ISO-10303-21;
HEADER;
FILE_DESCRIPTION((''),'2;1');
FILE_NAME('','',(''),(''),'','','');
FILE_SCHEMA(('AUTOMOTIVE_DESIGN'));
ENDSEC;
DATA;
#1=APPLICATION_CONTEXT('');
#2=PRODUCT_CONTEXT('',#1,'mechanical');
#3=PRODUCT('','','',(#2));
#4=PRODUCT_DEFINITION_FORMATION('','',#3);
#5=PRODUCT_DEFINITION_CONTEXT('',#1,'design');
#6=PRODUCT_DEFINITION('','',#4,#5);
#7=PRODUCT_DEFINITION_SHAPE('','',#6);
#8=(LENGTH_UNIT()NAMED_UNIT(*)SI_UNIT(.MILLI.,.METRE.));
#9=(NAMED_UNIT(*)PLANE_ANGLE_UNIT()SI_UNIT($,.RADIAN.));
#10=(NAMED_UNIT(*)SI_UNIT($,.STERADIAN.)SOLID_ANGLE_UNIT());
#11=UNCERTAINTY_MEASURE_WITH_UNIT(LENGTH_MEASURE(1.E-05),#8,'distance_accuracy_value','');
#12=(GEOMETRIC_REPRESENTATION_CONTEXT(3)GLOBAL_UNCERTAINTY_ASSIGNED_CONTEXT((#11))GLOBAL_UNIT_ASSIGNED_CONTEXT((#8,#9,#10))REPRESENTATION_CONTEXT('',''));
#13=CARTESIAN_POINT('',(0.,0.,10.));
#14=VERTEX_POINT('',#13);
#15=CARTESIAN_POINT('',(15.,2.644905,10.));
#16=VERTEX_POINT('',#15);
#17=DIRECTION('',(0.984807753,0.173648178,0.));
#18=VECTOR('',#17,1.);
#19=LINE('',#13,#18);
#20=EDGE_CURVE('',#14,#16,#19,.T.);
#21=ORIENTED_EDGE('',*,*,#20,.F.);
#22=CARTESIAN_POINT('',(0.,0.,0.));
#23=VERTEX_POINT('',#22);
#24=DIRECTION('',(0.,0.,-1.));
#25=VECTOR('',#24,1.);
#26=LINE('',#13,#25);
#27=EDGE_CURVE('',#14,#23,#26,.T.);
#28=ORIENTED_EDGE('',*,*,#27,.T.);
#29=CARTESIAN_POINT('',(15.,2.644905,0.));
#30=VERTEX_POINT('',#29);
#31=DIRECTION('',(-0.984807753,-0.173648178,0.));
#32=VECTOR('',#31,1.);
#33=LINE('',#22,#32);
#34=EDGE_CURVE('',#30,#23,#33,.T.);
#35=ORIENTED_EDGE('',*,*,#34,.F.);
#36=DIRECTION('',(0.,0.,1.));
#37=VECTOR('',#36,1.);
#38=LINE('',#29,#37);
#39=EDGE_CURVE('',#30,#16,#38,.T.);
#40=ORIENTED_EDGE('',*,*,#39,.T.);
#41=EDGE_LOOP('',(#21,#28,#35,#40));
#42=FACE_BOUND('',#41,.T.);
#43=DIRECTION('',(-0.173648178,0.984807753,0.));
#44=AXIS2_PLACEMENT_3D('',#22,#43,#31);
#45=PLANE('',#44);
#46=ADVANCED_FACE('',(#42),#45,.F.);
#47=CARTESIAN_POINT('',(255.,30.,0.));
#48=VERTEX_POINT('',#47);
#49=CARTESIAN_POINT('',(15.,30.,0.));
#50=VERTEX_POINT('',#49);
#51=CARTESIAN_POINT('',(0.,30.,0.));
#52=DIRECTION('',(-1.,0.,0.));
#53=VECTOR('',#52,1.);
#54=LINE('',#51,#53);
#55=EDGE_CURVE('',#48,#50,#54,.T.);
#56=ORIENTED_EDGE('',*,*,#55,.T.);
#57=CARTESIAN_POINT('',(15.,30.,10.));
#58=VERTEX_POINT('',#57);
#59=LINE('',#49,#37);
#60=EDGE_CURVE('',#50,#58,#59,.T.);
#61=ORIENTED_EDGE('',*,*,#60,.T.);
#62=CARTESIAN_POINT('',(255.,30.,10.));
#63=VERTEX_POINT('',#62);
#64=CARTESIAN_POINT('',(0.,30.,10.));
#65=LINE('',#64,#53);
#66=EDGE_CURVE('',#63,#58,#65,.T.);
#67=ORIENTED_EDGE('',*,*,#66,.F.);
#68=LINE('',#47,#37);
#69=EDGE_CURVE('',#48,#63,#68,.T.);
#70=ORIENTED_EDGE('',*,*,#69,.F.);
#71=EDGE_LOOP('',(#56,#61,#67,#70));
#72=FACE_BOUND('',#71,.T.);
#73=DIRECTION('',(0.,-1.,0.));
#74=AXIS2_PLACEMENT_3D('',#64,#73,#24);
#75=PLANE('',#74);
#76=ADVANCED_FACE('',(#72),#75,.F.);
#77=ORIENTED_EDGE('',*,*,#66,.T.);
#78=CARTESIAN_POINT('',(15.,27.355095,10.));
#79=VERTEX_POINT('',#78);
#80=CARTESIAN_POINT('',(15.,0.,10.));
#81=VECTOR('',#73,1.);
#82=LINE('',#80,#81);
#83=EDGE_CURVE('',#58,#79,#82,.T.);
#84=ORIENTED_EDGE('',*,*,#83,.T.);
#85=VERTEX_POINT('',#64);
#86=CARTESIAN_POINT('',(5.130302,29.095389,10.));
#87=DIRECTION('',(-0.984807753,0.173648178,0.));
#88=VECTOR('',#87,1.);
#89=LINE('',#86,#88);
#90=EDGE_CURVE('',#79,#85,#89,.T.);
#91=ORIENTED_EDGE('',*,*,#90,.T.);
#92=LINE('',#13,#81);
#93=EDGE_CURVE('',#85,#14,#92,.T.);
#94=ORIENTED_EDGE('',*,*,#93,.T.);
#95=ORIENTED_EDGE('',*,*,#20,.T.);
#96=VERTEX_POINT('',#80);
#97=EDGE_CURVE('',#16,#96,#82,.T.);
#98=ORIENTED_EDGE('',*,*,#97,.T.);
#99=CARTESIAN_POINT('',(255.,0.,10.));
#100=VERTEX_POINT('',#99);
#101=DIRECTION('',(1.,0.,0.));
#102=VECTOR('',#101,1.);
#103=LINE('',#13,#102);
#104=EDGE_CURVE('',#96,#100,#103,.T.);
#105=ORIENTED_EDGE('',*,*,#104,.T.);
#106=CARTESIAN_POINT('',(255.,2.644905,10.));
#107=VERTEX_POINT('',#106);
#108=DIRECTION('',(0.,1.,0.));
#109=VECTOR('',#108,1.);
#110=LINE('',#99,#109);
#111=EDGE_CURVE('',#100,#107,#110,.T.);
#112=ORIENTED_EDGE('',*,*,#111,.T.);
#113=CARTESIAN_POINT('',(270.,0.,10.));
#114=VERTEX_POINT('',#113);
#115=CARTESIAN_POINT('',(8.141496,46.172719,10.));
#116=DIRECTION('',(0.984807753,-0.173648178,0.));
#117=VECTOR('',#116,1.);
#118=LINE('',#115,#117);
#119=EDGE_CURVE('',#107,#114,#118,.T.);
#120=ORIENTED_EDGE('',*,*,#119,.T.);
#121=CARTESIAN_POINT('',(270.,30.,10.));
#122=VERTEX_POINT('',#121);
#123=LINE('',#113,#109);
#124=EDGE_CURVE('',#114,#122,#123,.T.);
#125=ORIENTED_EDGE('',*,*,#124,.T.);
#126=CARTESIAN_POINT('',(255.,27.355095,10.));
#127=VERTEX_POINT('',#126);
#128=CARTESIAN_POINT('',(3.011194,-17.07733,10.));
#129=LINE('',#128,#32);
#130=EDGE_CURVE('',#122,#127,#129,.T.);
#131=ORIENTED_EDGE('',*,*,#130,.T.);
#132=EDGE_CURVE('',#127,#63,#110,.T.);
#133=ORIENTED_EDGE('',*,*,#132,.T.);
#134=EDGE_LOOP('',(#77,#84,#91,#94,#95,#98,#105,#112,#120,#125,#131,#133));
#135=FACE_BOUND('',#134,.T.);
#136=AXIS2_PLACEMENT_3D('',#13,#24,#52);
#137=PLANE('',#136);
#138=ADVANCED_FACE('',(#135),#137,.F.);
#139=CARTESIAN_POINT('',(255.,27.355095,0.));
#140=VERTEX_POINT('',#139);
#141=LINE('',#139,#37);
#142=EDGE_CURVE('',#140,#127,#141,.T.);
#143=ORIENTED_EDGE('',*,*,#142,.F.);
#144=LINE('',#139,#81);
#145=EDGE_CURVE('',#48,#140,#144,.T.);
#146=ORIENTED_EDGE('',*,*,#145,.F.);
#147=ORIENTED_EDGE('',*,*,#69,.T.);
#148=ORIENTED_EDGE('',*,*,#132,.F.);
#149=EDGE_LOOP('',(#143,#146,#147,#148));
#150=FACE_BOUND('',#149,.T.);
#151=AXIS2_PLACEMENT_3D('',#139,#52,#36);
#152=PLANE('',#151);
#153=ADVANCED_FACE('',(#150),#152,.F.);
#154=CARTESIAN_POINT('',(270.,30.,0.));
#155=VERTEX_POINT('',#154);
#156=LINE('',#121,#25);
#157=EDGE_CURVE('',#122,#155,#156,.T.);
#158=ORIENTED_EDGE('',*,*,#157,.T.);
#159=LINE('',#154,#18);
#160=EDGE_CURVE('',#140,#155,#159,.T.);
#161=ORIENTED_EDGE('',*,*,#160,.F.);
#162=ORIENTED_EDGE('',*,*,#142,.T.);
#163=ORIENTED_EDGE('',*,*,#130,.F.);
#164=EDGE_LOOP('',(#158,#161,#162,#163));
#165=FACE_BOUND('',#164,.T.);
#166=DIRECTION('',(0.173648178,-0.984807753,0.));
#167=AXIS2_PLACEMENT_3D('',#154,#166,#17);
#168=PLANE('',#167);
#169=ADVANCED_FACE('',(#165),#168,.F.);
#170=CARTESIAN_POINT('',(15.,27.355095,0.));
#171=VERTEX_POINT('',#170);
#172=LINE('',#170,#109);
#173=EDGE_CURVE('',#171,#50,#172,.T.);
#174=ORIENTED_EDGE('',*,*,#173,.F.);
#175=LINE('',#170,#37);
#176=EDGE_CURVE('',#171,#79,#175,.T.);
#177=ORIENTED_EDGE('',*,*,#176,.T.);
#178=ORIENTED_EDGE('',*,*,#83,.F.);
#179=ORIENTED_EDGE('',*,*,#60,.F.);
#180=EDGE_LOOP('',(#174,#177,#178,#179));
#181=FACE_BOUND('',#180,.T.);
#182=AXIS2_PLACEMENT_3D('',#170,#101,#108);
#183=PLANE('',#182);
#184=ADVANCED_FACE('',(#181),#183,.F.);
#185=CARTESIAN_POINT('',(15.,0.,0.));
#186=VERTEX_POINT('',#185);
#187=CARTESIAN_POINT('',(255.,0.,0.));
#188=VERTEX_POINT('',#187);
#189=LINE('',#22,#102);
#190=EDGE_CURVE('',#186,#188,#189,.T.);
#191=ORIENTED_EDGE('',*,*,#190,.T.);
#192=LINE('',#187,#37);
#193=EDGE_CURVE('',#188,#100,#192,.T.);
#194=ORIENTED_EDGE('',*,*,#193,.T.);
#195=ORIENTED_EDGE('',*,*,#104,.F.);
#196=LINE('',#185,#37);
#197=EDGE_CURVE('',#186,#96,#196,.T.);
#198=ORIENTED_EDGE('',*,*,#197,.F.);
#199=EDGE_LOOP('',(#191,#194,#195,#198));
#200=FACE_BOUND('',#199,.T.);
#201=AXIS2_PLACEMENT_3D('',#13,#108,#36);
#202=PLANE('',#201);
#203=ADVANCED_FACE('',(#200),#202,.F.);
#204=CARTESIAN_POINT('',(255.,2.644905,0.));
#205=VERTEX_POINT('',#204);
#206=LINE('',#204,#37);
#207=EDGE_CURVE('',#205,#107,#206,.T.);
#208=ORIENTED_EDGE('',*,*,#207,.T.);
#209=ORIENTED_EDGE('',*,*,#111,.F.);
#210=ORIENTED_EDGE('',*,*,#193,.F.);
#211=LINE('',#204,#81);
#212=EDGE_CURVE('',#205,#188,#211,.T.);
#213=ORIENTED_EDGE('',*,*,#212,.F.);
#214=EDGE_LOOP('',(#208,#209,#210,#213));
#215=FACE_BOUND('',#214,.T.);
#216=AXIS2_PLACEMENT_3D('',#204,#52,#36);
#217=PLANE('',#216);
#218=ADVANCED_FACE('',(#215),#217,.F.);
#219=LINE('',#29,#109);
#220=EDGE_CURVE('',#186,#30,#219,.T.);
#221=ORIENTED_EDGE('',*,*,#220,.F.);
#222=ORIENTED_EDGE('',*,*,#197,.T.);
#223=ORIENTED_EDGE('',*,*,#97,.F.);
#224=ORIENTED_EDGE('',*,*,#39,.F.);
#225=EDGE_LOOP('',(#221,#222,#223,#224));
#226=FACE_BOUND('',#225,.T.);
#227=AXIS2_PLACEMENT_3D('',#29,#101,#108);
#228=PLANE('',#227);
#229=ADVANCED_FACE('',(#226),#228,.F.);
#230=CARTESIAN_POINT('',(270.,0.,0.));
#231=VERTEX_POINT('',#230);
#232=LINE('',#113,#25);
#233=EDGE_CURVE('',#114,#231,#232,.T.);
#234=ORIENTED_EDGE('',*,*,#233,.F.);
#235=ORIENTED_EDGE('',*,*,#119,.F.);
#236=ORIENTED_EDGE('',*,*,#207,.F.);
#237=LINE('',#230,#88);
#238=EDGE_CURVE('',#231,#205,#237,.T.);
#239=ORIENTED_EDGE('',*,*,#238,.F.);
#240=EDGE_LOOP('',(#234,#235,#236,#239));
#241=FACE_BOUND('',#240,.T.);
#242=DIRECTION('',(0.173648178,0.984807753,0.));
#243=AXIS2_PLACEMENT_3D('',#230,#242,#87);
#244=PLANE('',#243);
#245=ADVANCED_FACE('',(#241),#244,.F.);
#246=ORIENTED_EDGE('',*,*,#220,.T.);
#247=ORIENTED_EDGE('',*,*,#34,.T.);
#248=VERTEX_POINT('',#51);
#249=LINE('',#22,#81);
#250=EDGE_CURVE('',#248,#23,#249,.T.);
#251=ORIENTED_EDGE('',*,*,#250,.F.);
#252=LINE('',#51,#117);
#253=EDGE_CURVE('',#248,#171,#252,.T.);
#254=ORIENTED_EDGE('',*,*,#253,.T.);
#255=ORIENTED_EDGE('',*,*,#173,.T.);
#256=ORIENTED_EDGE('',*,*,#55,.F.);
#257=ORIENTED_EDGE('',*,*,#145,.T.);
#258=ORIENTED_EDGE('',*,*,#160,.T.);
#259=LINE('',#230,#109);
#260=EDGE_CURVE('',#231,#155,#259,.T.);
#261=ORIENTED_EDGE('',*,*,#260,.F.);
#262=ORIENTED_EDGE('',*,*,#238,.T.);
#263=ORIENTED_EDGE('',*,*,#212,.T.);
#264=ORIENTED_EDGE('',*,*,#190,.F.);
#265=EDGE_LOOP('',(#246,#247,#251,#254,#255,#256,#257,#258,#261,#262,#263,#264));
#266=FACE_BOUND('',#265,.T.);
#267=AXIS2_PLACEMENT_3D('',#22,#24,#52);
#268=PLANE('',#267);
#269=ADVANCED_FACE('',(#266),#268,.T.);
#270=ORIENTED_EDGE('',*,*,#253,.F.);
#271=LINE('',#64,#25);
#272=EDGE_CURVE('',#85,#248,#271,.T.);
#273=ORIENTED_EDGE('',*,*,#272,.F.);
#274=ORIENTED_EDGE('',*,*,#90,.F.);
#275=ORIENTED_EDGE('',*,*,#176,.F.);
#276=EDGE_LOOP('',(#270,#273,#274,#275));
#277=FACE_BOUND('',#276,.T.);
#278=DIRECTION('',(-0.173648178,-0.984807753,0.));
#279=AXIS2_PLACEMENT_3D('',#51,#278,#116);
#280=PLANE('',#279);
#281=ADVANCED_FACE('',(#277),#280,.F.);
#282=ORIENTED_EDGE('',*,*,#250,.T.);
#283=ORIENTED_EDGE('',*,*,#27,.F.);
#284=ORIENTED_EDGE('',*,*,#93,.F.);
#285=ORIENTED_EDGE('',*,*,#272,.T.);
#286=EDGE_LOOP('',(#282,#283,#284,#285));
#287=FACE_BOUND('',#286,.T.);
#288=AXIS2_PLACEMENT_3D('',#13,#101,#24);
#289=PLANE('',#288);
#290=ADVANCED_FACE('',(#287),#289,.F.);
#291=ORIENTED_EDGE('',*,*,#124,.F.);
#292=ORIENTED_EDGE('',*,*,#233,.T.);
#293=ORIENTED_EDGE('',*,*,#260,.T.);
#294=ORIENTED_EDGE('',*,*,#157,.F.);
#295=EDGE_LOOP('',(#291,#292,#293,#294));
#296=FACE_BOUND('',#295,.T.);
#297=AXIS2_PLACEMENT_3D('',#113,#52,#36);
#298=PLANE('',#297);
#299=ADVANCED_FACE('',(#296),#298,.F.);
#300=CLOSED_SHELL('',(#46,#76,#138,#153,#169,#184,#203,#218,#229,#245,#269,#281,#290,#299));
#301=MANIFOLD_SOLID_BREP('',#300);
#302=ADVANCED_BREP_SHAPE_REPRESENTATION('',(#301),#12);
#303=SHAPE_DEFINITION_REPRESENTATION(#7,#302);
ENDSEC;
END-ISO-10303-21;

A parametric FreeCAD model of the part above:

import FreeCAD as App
import Part
import Sketcher
Q = App.Units.Quantity

doc = App.newDocument("Part")
params = doc.addObject("Spreadsheet::Sheet", "Params")
for row, (alias, value) in enumerate([
    ("sketch1_width", "270 mm"),
    ("sketch1_height", "30 mm"),
    ("pad1_length", "10 mm"),
    ("sketch2_width", "15 mm"),
], start=1):
    params.set(f"A{row}", alias)
    params.set(f"B{row}", "=" + value)
    params.setAlias(f"B{row}", alias)

body = doc.addObject("PartDesign::Body", "Body")

# Sketch on XY plane
sketch1 = doc.addObject("Sketcher::SketchObject", "Sketch")
body.addObject(sketch1)
sketch1.AttachmentSupport = (doc.XY_Plane, [""])
sketch1.MapMode = "FlatFace"
sketch1.addGeometry([
    Part.LineSegment(App.Vector(0, 30, 0), App.Vector(0, 0, 0)),
    Part.LineSegment(App.Vector(0, 0, 0), App.Vector(270, 0, 0)),
    Part.LineSegment(App.Vector(270, 0, 0), App.Vector(270, 30, 0)),
    Part.LineSegment(App.Vector(270, 30, 0), App.Vector(0, 30, 0)),
], False)
sketch1.addConstraint([
    Sketcher.Constraint("Coincident", 0, 2, 1, 1),
    Sketcher.Constraint("Coincident", 1, 2, 2, 1),
    Sketcher.Constraint("Coincident", 2, 2, 3, 1),
    Sketcher.Constraint("Coincident", 3, 2, 0, 1),
    Sketcher.Constraint("Vertical", 0),
    Sketcher.Constraint("Horizontal", 1),
    Sketcher.Constraint("Vertical", 2),
    Sketcher.Constraint("Horizontal", 3),
    Sketcher.Constraint("Coincident", 0, 2, -1, 1),
    Sketcher.Constraint("DistanceX", 1, 1, 1, 2, Q("270 mm")),
    Sketcher.Constraint("DistanceY", 0, 2, 0, 1, Q("30 mm")),
])
sketch1.setExpression("Constraints[9]", "Params.sketch1_width")
sketch1.setExpression("Constraints[10]", "Params.sketch1_height")
pad1 = doc.addObject("PartDesign::Pad", "Pad")
body.addObject(pad1)
pad1.Profile = sketch1
pad1.setExpression("Length", "Params.pad1_length")

# Sketch on XY plane
sketch2 = doc.addObject("Sketcher::SketchObject", "Sketch001")
body.addObject(sketch2)
sketch2.AttachmentSupport = (doc.XY_Plane, [""])
sketch2.MapMode = "FlatFace"
sketch2.AttachmentOffset = App.Placement(App.Vector(0, 0, 10), App.Rotation())
sketch2.addGeometry([
    Part.LineSegment(App.Vector(0, 30, 0), App.Vector(15, 27.355095, 0)),  # 0
    Part.LineSegment(App.Vector(15, 27.355095, 0), App.Vector(15, 30, 0)),  # 1
    Part.LineSegment(App.Vector(15, 30, 0), App.Vector(0, 30, 0)),  # 2
    Part.LineSegment(App.Vector(15, 0, 0), App.Vector(15, 2.644905, 0)),  # 3
    Part.LineSegment(App.Vector(15, 2.644905, 0), App.Vector(0, 0, 0)),  # 4
    Part.LineSegment(App.Vector(0, 0, 0), App.Vector(15, 0, 0)),  # 5
    Part.LineSegment(App.Vector(255, 0, 0), App.Vector(270, 0, 0)),  # 6
    Part.LineSegment(App.Vector(270, 0, 0), App.Vector(255, 2.644905, 0)),  # 7
    Part.LineSegment(App.Vector(255, 2.644905, 0), App.Vector(255, 0, 0)),  # 8
    Part.LineSegment(App.Vector(270, 30, 0), App.Vector(255, 30, 0)),  # 9
    Part.LineSegment(App.Vector(255, 30, 0), App.Vector(255, 27.355095, 0)),  # 10
    Part.LineSegment(App.Vector(255, 27.355095, 0), App.Vector(270, 30, 0)),  # 11
], False)
sketch2.addConstraint([
    Sketcher.Constraint("Coincident", 0, 2, 1, 1),
    Sketcher.Constraint("Coincident", 1, 2, 2, 1),
    Sketcher.Constraint("Coincident", 2, 2, 0, 1),
    Sketcher.Constraint("Coincident", 3, 2, 4, 1),
    Sketcher.Constraint("Coincident", 4, 2, 5, 1),
    Sketcher.Constraint("Coincident", 5, 2, 3, 1),
    Sketcher.Constraint("Coincident", 6, 2, 7, 1),
    Sketcher.Constraint("Coincident", 7, 2, 8, 1),
    Sketcher.Constraint("Coincident", 8, 2, 6, 1),
    Sketcher.Constraint("Coincident", 9, 2, 10, 1),
    Sketcher.Constraint("Coincident", 10, 2, 11, 1),
    Sketcher.Constraint("Coincident", 11, 2, 9, 1),
    Sketcher.Constraint("Vertical", 1),
    Sketcher.Constraint("Horizontal", 2),
    Sketcher.Constraint("Vertical", 3),
    Sketcher.Constraint("Horizontal", 5),
    Sketcher.Constraint("Horizontal", 6),
    Sketcher.Constraint("Vertical", 8),
    Sketcher.Constraint("Horizontal", 9),
    Sketcher.Constraint("Vertical", 10),
    Sketcher.Constraint("Coincident", 4, 2, -1, 1),
    Sketcher.Constraint("PointOnObject", 2, 2, -2),
    Sketcher.Constraint("PointOnObject", 6, 2, -1),
    Sketcher.Constraint("Parallel", 0, 7),
    Sketcher.Constraint("Parallel", 4, 11),
    Sketcher.Constraint("Horizontal", 3, 2, 7, 2),
    Sketcher.Constraint("Horizontal", 2, 2, 9, 2),
    Sketcher.Constraint("Horizontal", 0, 2, 10, 2),
    Sketcher.Constraint("Vertical", 1, 2, 3, 2),
    Sketcher.Constraint("Vertical", 8, 2, 9, 2),
    Sketcher.Constraint("Vertical", 6, 2, 11, 2),
    Sketcher.Constraint("DistanceX", 2, 2, 2, 1, Q("15 mm")),
    Sketcher.Constraint("Angle", 0, Q("-10 deg")),
    Sketcher.Constraint("DistanceY", -1, 1, 1, 2, Q("30 mm")),
    Sketcher.Constraint("DistanceX", -1, 1, 6, 2, Q("270 mm")),
])
sketch2.setExpression("Constraints[31]", "Params.sketch2_width")
pocket1 = doc.addObject("PartDesign::Pocket", "Pocket")
body.addObject(pocket1)
pocket1.Profile = sketch2
pocket1.Type = "ThroughAll"
pocket1.Midplane = True

doc.recompute()
